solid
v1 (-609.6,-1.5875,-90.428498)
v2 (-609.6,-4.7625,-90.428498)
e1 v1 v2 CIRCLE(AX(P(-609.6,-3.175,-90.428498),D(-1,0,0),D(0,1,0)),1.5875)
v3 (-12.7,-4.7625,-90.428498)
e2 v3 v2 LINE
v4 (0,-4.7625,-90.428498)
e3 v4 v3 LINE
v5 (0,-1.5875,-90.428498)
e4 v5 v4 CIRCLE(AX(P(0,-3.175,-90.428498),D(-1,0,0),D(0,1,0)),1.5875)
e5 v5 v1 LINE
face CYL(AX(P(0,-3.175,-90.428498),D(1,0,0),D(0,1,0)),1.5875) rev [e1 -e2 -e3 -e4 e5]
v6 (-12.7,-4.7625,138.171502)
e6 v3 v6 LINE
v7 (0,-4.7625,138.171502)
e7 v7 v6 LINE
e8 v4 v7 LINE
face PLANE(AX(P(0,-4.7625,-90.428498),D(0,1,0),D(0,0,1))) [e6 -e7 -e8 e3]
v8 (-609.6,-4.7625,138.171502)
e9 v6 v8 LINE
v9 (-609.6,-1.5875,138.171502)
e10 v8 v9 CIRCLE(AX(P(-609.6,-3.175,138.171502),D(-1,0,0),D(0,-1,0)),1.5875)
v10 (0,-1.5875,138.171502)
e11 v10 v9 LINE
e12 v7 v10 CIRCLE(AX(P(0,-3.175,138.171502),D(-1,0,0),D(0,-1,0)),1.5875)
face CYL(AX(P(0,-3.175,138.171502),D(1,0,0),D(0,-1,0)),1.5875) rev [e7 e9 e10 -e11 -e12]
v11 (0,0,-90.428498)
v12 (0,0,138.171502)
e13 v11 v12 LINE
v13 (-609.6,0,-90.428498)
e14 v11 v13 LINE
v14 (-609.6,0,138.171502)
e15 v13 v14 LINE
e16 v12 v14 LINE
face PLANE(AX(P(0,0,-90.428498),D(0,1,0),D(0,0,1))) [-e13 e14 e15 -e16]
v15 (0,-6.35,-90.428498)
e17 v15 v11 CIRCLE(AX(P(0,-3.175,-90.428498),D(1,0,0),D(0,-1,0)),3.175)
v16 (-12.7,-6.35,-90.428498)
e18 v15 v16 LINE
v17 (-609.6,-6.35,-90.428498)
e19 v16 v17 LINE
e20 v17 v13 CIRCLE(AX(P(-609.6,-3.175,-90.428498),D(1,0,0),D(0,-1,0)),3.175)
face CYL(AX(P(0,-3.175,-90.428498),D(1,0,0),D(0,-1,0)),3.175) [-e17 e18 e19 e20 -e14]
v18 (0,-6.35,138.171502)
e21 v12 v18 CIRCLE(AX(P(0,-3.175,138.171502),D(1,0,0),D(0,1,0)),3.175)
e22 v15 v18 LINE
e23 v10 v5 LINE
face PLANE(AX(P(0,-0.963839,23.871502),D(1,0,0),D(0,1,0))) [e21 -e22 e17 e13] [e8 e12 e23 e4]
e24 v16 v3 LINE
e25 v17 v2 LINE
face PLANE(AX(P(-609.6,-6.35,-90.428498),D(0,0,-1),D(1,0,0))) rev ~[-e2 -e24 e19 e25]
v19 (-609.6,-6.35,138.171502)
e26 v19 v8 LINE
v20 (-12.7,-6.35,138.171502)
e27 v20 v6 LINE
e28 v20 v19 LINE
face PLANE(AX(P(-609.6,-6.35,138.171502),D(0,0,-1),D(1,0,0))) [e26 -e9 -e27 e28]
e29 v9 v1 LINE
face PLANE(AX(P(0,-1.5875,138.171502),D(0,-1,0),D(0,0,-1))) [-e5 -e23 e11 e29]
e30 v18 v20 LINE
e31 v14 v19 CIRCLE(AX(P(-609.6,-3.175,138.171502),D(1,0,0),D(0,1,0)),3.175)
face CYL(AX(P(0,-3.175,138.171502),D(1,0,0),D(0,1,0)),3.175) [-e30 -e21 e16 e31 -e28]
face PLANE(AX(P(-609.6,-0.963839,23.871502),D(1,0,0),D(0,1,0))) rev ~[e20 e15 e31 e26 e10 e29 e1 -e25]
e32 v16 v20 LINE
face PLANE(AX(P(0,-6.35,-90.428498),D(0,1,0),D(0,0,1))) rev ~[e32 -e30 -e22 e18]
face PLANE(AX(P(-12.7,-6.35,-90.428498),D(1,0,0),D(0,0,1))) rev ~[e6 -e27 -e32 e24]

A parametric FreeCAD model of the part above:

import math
import FreeCAD as App
import Part
import Sketcher

V = App.Vector
Q = App.Units.Quantity

doc = App.newDocument("Part")
body = doc.addObject("PartDesign::Body", "Body")

# Sketch on YZ plane
sketch1 = body.newObject("Sketcher::SketchObject", "Sketch")
sketch1.AttachmentSupport = (doc.getObject("YZ_Plane"), [""])
sketch1.MapMode = "FlatFace"
sketch1.addGeometry([
    Part.ArcOfCircle(Part.Circle(V(-3.175, -90.428498, 0), V(0, 0, 1), 3.175), math.radians(180), math.radians(360)),  # 0
    Part.LineSegment(V(0, -90.428498, 0), V(0, 138.171502, 0)),  # 1
    Part.ArcOfCircle(Part.Circle(V(-3.175, 138.171502, 0), V(0, 0, 1), 3.175), math.radians(0), math.radians(180)),  # 2
    Part.LineSegment(V(-6.35, 138.171502, 0), V(-6.35, -90.428498, 0)),  # 3
    Part.ArcOfCircle(Part.Circle(V(-3.175, 138.171502, 0), V(0, 0, 1), 1.5875), math.radians(0), math.radians(180)),  # 4
    Part.LineSegment(V(-1.5875, 138.171502, 0), V(-1.5875, -90.428498, 0)),  # 5
    Part.ArcOfCircle(Part.Circle(V(-3.175, -90.428498, 0), V(0, 0, 1), 1.5875), math.radians(180), math.radians(360)),  # 6
    Part.LineSegment(V(-4.7625, -90.428498, 0), V(-4.7625, 138.171502, 0)),  # 7
], False)
sketch1.addConstraint([
    Sketcher.Constraint("Tangent", 0, 2, 1, 1),
    Sketcher.Constraint("Tangent", 1, 2, 2, 1),
    Sketcher.Constraint("Tangent", 2, 2, 3, 1),
    Sketcher.Constraint("Tangent", 3, 2, 0, 1),
    Sketcher.Constraint("Tangent", 4, 1, 5, 1),
    Sketcher.Constraint("Tangent", 5, 2, 6, 2),
    Sketcher.Constraint("Tangent", 6, 1, 7, 1),
    Sketcher.Constraint("Tangent", 7, 2, 4, 2),
    Sketcher.Constraint("Vertical", 1),
    Sketcher.Constraint("Vertical", 3),
    Sketcher.Constraint("Vertical", 5),
    Sketcher.Constraint("Vertical", 7),
    Sketcher.Constraint("Coincident", 4, 3, 2, 3),
    Sketcher.Constraint("PointOnObject", 0, 2, -2),
    Sketcher.Constraint("Horizontal", 6, 3, 0, 2),
    Sketcher.Constraint("DistanceY", 1, 1, 1, 2, Q("9 in")),
    Sketcher.Constraint("Radius", 0, Q("0.125 in")),
    Sketcher.Constraint("Radius", 4, Q("0.0625 in")),
    Sketcher.Constraint("DistanceY", 0, 3, -1, 1, 90.428498),
])
pad1 = body.newObject("PartDesign::Pad", "Pad")
pad1.Profile = sketch1
pad1.Length = Q("24 in")
pad1.Reversed = True

# Sketch on XZ plane
sketch2 = body.newObject("Sketcher::SketchObject", "Sketch001")
sketch2.AttachmentSupport = (doc.getObject("XZ_Plane"), [""])
sketch2.MapMode = "FlatFace"
sketch2.AttachmentOffset = App.Placement(V(0, 0, 0.25 * 25.4), App.Rotation())
sketch2.addGeometry([
    Part.LineSegment(V(-609.6, 138.171502, 0), V(-609.6, -90.428498, 0)),
    Part.LineSegment(V(-609.6, -90.428498, 0), V(-12.7, -90.428498, 0)),
    Part.LineSegment(V(-12.7, -90.428498, 0), V(-12.7, 138.171502, 0)),
    Part.LineSegment(V(-12.7, 138.171502, 0), V(-609.6, 138.171502, 0)),
], False)
sketch2.addConstraint([
    Sketcher.Constraint("Coincident", 0, 2, 1, 1),
    Sketcher.Constraint("Coincident", 1, 2, 2, 1),
    Sketcher.Constraint("Coincident", 2, 2, 3, 1),
    Sketcher.Constraint("Coincident", 3, 2, 0, 1),
    Sketcher.Constraint("Vertical", 0),
    Sketcher.Constraint("Horizontal", 1),
    Sketcher.Constraint("Vertical", 2),
    Sketcher.Constraint("Horizontal", 3),
    Sketcher.Constraint("DistanceY", 0, 2, 0, 1, Q("9 in")),
    Sketcher.Constraint("DistanceX", 1, 1, 1, 2, Q("23.5 in")),
    Sketcher.Constraint("DistanceX", 0, 2, -1, 1, Q("24 in")),
    Sketcher.Constraint("DistanceY", 0, 2, -1, 1, 90.428498),
])
pocket1 = body.newObject("PartDesign::Pocket", "Pocket")
pocket1.Profile = sketch2
pocket1.Length = Q("0.0625 in")

doc.recompute()
